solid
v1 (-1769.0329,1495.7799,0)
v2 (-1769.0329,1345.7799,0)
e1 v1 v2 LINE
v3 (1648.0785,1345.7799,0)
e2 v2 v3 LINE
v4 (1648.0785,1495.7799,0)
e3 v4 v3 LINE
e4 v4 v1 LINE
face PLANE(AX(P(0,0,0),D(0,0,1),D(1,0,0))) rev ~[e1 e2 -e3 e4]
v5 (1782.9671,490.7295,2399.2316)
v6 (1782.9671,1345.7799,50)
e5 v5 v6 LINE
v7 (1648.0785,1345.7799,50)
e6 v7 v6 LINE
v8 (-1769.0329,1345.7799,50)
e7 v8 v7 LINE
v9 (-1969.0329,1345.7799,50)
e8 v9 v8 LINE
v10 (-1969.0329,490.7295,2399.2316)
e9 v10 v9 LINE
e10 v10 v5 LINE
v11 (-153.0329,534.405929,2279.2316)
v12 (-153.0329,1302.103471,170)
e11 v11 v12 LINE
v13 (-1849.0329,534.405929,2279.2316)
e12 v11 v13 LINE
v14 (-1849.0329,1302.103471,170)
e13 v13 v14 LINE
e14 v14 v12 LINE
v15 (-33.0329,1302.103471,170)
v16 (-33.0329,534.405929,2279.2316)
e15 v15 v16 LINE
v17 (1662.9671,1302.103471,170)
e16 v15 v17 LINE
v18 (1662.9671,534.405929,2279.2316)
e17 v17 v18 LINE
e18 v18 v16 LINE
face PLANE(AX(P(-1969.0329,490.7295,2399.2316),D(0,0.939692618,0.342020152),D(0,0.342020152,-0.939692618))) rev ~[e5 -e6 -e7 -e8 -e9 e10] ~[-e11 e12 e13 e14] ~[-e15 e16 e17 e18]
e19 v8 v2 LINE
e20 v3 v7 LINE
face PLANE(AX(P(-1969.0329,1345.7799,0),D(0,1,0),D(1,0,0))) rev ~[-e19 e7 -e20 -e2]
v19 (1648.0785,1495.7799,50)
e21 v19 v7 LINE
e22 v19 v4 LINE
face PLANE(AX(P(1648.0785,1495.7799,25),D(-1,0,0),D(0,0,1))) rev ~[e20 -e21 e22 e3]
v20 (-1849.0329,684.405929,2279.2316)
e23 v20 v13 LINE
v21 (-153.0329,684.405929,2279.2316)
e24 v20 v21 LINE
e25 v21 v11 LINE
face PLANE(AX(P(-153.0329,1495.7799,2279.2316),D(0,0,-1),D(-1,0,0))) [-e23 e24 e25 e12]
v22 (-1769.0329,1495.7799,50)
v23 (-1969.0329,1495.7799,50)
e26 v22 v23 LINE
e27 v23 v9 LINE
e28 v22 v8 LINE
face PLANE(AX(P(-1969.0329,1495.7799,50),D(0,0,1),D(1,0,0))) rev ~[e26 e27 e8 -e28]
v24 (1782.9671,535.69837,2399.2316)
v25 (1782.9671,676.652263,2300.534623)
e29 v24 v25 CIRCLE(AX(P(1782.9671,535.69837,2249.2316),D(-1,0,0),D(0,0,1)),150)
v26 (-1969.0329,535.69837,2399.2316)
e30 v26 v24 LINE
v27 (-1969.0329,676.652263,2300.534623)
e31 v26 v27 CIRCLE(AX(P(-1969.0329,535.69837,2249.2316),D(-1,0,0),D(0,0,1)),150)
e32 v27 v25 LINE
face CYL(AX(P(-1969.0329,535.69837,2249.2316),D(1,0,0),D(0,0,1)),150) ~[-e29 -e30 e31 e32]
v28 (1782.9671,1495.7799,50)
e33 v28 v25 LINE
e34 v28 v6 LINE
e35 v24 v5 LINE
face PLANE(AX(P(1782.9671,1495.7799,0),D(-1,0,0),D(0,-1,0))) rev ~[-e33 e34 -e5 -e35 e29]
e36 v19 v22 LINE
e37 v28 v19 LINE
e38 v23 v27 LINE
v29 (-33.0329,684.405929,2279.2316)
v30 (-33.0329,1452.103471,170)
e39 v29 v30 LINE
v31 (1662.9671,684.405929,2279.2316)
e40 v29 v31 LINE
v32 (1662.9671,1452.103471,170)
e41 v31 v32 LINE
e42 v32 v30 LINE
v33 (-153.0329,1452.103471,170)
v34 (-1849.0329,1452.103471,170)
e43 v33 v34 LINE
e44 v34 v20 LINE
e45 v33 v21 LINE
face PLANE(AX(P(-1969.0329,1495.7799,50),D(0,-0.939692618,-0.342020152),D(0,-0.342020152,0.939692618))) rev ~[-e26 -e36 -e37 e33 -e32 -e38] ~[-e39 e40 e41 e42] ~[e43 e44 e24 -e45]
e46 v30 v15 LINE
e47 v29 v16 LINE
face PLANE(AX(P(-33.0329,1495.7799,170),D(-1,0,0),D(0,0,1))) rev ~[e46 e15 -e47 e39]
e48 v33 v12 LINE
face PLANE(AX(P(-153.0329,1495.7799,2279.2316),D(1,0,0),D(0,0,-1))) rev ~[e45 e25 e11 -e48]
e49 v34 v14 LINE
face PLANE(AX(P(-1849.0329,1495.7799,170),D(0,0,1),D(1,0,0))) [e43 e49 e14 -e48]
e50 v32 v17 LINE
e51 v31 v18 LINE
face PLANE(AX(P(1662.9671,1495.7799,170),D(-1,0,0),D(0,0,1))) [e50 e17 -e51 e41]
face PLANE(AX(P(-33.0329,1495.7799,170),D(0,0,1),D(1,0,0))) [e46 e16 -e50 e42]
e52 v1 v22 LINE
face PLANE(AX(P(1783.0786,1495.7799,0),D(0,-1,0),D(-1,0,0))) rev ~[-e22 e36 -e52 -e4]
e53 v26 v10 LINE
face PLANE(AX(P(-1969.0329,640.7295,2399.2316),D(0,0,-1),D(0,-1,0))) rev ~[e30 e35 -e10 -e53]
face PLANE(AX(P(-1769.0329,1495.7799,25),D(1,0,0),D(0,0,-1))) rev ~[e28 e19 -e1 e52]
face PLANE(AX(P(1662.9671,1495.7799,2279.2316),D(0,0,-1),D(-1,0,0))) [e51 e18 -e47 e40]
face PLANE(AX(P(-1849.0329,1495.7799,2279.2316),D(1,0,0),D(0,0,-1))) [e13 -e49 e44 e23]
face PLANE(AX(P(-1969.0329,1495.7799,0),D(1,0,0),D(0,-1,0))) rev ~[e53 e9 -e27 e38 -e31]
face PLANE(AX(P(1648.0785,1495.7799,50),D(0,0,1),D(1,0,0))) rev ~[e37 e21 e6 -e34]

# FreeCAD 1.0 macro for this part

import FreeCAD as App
import Part
import Sketcher
Q = App.Units.Quantity


def edges_at(feature, points):
    """Names of the edges that pass closest to the given points."""
    edges = feature.Shape.Edges
    near = lambda p: min(range(len(edges)), key=lambda i: edges[i].distToShape(Part.Vertex(*p))[0])
    return sorted({f"Edge{near(p) + 1}" for p in points})


def add_polygon(sketch, points):
    """Adds a closed chain of lines whose ends are joined by coincident constraints."""
    first, n = sketch.GeometryCount, len(points)
    for a, b in zip(points, points[1:] + points[:1]):
        sketch.addGeometry(Part.LineSegment(App.Vector(*a, 0), App.Vector(*b, 0)), False)
    for i in range(n):
        sketch.addConstraint(Sketcher.Constraint("Coincident", first + i, 2, first + (i + 1) % n, 1))

doc = App.newDocument("Part")
body = doc.addObject("PartDesign::Body", "Body")

sketch1 = body.newObject("Sketcher::SketchObject", "Sketch")
sketch1.AttachmentSupport = (doc.getObject("XY_Plane"), [""])
sketch1.MapMode = "FlatFace"
add_polygon(sketch1, [(1783, 1346), (1783, 1496), (-1969, 1496), (-1969, 1346)])
sketch1.addConstraint([
    Sketcher.Constraint("Vertical", 0),
    Sketcher.Constraint("Horizontal", 1),
    Sketcher.Constraint("Vertical", 2),
    Sketcher.Constraint("Horizontal", 3),
    Sketcher.Constraint("DistanceY", 0, 1, 0, 2, Q("150 mm")),
    Sketcher.Constraint("DistanceX", 1, 2, 1, 1, Q("3752.1115 mm")),
    Sketcher.Constraint("DistanceY", -1, 1, 0, 2, Q("1495.78 mm")),
    Sketcher.Constraint("DistanceX", 1, 2, -1, 1, Q("1969.033 mm")),
])
pad1 = body.newObject("PartDesign::Pad", "Pad")
pad1.Profile = sketch1
pad1.Length = 50

sketch2 = body.newObject("Sketcher::SketchObject", "Sketch001")
sketch2.AttachmentSupport = (doc.getObject("YZ_Plane"), [""])
sketch2.MapMode = "FlatFace"
sketch2.AttachmentOffset = App.Placement(App.Vector(0, 0, -1969.0329), App.Rotation())
add_polygon(sketch2, [(641, 2399), (1496, 50), (1346, 50), (491, 2399)])
sketch2.addConstraint([
    Sketcher.Constraint("Horizontal", 1),
    Sketcher.Constraint("Horizontal", 3),
    Sketcher.Constraint("Parallel", 0, 2),
    Sketcher.Constraint("DistanceX", 1, 2, 1, 1, Q("150 mm")),
    Sketcher.Constraint("Angle", 0, Q("-70 deg")),
    Sketcher.Constraint("Distance", 0, Q("2500 mm")),
    Sketcher.Constraint("DistanceY", -1, 1, 0, 2, Q("50 mm")),
    Sketcher.Constraint("DistanceX", -1, 1, 0, 2, Q("1495.78 mm")),
])
pad2 = body.newObject("PartDesign::Pad", "Pad001")
pad2.Profile = sketch2
pad2.Length = 3752

sketch3 = body.newObject("Sketcher::SketchObject", "Sketch002")
sketch3.AttachmentSupport = (doc.getObject("XZ_Plane"), [""])
sketch3.MapMode = "FlatFace"
sketch3.AttachmentOffset = App.Placement(App.Vector(0, 0, -1495.7799), App.Rotation())
add_polygon(sketch3, [(-1769, 0), (-1969, 0), (-1969, 50), (-1769, 50)])
add_polygon(sketch3, [(1783, 50), (1783, 0), (1648, 0), (1648, 50)])
sketch3.addConstraint([
    Sketcher.Constraint("Horizontal", 0),
    Sketcher.Constraint("Vertical", 1),
    Sketcher.Constraint("Horizontal", 2),
    Sketcher.Constraint("Vertical", 3),
    Sketcher.Constraint("Vertical", 4),
    Sketcher.Constraint("Horizontal", 5),
    Sketcher.Constraint("Vertical", 6),
    Sketcher.Constraint("Horizontal", 7),
    Sketcher.Constraint("PointOnObject", 0, 2, -1),
    Sketcher.Constraint("PointOnObject", 4, 2, -1),
    Sketcher.Constraint("Horizontal", 2, 2, 6, 2),
    Sketcher.Constraint("DistanceX", 0, 2, 0, 1, Q("200 mm")),
    Sketcher.Constraint("DistanceX", 5, 2, 5, 1, Q("135 mm")),
    Sketcher.Constraint("DistanceY", 1, 1, 1, 2, Q("50 mm")),
    Sketcher.Constraint("DistanceX", 0, 2, -1, 1, Q("1969.033 mm")),
    Sketcher.Constraint("DistanceX", -1, 1, 4, 2, Q("1783.0786 mm")),
])
pocket1 = body.newObject("PartDesign::Pocket", "Pocket")
pocket1.Profile = sketch3
pocket1.Type = "ThroughAll"
pocket1.Reversed = True
doc.recompute()

fillet = body.newObject("PartDesign::Fillet", "Fillet")
fillet.Base = (pocket1, edges_at(pocket1, [(-93.033, 640.73, 2399.232)]))
fillet.Radius = 150

sketch4 = body.newObject("Sketcher::SketchObject", "Sketch003")
sketch4.AttachmentSupport = (doc.getObject("XZ_Plane"), [""])
sketch4.MapMode = "FlatFace"
sketch4.AttachmentOffset = App.Placement(App.Vector(0, 0, -1495.7799), App.Rotation())
add_polygon(sketch4, [(-153, 170), (-1849, 170), (-1849, 2279), (-153, 2279)])
add_polygon(sketch4, [(-33, 2279), (1663, 2279), (1663, 170), (-33, 170)])
sketch4.addConstraint([
    Sketcher.Constraint("Horizontal", 0),
    Sketcher.Constraint("Vertical", 1),
    Sketcher.Constraint("Horizontal", 2),
    Sketcher.Constraint("Vertical", 3),
    Sketcher.Constraint("Horizontal", 4),
    Sketcher.Constraint("Vertical", 5),
    Sketcher.Constraint("Horizontal", 6),
    Sketcher.Constraint("Vertical", 7),
    Sketcher.Constraint("Horizontal", 2, 2, 4, 2),
    Sketcher.Constraint("Horizontal", 3, 2, 5, 2),
    Sketcher.Constraint("Equal", 2, 4),
    Sketcher.Constraint("DistanceX", 3, 2, 6, 2, Q("120 mm")),
    Sketcher.Constraint("DistanceX", 0, 2, 0, 1, Q("1696 mm")),
    Sketcher.Constraint("DistanceY", -1, 1, 0, 2, Q("170 mm")),
    Sketcher.Constraint("DistanceY", 1, 1, 1, 2, Q("2109.2316 mm")),
    Sketcher.Constraint("DistanceX", 0, 2, -1, 1, Q("1849.033 mm")),
])
pocket2 = body.newObject("PartDesign::Pocket", "Pocket001")
pocket2.Profile = sketch4
pocket2.Type = "ThroughAll"
pocket2.Reversed = True

doc.recompute()
